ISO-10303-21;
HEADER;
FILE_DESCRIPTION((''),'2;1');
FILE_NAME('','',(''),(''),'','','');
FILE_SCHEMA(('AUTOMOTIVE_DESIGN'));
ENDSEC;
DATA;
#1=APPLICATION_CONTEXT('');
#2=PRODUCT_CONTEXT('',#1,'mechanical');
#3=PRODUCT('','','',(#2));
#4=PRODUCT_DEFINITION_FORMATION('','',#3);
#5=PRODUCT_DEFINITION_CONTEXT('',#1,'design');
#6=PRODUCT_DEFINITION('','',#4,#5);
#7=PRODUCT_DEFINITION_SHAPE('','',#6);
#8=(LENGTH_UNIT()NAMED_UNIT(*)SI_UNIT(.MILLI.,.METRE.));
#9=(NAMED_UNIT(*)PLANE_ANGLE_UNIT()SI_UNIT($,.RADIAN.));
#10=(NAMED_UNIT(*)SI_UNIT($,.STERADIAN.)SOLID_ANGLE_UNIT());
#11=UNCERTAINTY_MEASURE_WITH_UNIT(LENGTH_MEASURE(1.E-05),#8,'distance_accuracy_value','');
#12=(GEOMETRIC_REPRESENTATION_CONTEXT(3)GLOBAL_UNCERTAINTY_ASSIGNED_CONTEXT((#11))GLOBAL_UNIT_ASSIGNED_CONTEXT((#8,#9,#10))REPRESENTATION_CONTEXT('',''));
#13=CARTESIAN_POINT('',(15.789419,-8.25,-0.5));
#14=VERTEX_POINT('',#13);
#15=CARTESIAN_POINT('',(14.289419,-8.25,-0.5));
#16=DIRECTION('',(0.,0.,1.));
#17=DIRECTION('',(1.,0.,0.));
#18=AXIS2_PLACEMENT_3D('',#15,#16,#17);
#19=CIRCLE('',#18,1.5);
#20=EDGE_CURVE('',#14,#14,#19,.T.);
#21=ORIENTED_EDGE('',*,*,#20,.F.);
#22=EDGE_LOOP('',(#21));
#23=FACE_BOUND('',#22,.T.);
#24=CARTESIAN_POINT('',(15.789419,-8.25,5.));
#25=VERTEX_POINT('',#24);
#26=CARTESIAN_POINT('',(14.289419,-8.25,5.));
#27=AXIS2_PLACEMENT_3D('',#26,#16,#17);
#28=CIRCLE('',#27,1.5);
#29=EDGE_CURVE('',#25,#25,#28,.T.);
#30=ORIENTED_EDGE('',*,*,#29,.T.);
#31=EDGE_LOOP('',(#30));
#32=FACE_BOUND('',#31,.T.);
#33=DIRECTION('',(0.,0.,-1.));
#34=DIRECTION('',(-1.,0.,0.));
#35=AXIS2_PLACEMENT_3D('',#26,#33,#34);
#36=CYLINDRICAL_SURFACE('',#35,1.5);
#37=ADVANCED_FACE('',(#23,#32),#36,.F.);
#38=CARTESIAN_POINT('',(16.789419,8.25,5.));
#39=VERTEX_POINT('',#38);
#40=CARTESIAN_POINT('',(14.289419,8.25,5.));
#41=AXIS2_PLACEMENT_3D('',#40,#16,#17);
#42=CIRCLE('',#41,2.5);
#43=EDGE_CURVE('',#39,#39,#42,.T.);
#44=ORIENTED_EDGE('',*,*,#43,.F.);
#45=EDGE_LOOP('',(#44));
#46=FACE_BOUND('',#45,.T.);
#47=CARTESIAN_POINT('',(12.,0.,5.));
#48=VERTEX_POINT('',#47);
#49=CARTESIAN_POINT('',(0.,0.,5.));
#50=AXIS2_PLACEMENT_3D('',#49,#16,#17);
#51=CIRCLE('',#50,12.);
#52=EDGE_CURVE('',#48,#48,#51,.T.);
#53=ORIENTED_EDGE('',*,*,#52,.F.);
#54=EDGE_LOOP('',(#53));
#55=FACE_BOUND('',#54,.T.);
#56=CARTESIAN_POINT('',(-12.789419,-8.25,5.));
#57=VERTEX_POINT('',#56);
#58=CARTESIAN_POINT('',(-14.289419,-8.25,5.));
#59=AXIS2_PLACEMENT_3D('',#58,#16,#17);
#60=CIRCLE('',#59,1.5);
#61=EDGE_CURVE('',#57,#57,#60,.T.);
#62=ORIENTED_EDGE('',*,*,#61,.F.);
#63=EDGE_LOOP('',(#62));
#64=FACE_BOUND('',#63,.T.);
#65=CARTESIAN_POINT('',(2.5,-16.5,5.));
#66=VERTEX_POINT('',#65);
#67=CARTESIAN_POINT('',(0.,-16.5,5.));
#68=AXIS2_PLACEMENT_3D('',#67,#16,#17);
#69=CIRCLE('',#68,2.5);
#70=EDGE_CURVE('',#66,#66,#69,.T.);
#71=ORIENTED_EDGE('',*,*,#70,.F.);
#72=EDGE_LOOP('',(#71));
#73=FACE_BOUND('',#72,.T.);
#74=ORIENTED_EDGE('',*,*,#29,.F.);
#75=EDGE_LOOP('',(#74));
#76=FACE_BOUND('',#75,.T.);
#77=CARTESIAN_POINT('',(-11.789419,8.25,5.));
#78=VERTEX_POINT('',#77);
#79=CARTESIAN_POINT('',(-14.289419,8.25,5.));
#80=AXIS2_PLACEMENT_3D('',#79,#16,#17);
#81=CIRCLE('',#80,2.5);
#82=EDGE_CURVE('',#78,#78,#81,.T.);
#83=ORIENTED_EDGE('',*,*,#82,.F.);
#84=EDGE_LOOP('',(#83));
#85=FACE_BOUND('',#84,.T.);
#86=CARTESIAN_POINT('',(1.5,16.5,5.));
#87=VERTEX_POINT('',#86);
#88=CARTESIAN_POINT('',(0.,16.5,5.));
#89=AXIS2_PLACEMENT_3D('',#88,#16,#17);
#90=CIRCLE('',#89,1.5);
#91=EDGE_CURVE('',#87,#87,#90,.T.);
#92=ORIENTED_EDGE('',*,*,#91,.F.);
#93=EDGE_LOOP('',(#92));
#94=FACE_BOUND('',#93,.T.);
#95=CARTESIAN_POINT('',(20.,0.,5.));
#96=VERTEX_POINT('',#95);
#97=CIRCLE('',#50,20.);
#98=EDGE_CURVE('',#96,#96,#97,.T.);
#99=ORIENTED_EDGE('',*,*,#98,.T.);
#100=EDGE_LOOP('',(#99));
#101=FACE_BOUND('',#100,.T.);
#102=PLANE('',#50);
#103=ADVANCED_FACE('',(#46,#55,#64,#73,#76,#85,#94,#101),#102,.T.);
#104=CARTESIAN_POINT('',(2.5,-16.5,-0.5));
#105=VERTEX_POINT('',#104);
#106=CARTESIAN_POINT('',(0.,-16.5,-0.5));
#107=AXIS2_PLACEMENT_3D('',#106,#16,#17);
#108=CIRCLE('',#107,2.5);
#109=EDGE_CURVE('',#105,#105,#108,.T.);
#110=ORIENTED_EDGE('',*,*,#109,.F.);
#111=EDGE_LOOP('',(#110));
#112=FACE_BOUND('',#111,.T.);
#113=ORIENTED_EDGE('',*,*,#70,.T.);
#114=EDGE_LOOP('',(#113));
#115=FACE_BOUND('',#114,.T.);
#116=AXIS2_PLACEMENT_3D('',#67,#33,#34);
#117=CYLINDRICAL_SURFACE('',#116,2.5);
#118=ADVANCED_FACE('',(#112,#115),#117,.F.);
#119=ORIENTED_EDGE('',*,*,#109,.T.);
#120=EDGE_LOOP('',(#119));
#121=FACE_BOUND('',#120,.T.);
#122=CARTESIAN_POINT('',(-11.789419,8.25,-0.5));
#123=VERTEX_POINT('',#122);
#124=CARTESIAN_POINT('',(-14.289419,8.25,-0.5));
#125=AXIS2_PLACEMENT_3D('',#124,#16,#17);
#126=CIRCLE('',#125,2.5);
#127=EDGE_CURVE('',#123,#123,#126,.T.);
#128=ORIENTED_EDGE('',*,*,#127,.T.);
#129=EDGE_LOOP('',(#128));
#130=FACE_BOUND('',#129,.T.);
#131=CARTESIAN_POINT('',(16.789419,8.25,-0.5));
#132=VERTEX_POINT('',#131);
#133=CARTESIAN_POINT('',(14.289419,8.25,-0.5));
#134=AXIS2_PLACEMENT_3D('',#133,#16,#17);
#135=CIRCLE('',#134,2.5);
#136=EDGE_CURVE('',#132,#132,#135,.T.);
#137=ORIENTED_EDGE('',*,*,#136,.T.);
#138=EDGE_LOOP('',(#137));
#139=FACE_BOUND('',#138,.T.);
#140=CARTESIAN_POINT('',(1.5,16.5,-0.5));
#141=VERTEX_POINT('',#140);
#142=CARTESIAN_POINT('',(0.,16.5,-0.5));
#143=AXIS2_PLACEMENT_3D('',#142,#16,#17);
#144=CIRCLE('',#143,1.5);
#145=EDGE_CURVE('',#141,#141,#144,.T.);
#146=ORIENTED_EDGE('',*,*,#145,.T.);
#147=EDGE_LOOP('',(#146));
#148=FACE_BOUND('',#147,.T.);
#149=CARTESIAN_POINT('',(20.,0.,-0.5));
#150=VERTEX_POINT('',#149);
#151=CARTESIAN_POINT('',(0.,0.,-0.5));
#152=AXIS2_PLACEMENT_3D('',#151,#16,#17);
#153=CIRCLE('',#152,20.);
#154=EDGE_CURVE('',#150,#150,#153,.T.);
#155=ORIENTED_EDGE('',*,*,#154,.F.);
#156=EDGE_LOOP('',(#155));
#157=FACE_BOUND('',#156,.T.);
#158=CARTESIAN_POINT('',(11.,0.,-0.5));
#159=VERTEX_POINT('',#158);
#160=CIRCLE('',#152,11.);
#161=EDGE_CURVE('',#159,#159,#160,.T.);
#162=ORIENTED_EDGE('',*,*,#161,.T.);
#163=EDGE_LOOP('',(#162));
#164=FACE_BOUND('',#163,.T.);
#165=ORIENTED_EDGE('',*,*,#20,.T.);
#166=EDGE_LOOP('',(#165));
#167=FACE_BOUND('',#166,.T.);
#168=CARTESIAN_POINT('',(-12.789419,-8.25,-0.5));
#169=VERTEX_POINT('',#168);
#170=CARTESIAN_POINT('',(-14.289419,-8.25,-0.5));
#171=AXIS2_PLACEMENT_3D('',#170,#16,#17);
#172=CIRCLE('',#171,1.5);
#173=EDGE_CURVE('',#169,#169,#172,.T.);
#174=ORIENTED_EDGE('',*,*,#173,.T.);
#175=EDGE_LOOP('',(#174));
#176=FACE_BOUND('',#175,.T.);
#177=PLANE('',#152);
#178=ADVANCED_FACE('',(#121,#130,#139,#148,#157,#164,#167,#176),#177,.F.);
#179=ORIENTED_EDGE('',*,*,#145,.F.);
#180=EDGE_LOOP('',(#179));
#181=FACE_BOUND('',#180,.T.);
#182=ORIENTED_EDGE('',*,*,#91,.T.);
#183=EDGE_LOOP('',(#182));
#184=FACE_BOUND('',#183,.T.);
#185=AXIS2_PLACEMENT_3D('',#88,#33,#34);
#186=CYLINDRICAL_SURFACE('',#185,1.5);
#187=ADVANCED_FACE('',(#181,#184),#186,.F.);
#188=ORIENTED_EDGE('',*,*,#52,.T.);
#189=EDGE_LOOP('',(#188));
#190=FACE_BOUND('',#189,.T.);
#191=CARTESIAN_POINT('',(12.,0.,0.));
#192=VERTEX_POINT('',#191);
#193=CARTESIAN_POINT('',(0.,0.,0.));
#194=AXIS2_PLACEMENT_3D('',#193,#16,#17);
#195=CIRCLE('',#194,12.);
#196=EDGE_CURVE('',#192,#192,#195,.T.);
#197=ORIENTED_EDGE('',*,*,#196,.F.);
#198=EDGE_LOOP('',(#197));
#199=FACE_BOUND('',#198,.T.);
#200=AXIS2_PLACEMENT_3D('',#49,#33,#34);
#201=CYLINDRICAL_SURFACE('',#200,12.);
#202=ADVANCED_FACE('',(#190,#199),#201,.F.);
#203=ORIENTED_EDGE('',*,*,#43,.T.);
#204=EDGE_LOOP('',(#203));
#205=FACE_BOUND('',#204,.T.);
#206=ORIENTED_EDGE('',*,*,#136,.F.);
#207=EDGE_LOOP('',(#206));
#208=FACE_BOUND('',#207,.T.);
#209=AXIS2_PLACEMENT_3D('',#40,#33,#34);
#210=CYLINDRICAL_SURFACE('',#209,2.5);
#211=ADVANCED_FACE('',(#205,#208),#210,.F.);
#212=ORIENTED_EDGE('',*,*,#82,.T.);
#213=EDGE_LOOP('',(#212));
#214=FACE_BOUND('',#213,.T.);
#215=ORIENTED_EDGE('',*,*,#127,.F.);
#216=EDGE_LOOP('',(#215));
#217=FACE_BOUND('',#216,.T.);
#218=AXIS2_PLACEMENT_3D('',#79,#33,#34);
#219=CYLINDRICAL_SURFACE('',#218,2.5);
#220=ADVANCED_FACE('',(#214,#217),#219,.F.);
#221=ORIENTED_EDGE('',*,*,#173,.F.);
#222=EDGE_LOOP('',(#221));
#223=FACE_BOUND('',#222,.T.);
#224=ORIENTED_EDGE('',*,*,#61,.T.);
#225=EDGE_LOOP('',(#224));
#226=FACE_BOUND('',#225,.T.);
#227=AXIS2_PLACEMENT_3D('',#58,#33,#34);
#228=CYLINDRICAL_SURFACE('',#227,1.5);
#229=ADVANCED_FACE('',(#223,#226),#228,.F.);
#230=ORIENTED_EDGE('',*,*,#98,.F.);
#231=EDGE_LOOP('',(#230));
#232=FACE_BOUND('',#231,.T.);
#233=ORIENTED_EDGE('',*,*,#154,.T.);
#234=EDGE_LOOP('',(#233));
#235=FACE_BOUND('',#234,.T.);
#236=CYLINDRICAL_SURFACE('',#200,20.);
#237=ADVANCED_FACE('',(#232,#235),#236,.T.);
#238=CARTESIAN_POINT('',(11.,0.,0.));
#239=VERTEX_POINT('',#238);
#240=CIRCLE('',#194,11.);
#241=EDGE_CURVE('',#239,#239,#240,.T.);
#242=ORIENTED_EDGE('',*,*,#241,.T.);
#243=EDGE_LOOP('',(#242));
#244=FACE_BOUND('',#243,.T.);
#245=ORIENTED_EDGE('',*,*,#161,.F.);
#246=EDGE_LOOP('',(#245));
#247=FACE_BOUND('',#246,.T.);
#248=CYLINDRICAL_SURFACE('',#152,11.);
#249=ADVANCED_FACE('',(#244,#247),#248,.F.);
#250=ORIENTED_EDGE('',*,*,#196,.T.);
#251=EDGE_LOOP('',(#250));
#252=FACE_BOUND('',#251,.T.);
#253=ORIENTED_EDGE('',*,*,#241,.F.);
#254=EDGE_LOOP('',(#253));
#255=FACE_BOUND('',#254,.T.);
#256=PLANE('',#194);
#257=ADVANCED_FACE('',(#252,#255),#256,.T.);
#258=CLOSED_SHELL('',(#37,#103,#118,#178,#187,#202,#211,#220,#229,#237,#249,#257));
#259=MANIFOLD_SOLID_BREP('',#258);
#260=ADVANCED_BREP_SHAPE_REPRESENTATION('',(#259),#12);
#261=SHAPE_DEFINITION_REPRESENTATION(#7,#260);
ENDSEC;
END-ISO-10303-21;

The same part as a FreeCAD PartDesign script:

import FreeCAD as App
import Part
import Sketcher
from FreeCAD import Vector

doc = App.newDocument("Part")
body = doc.addObject("PartDesign::Body", "Body")

# Sketch on XY plane
sketch1 = doc.addObject("Sketcher::SketchObject", "Sketch")
body.addObject(sketch1)
sketch1.AttachmentSupport = (doc.XY_Plane, [""])
sketch1.MapMode = "FlatFace"
sketch1.addGeometry([
    Part.Circle(Vector(0, 0, 0), Vector(0, 0, 1), 20),  # 0
    Part.Circle(Vector(0, -16.5, 0), Vector(0, 0, 1), 2.5),  # 1
    Part.Circle(Vector(-14.3, -8.2, 0), Vector(0, 0, 1), 1.5),  # 2
    Part.Circle(Vector(14.3, -8.2, 0), Vector(0, 0, 1), 1.5),  # 3
    Part.Circle(Vector(-14.3, 8.2, 0), Vector(0, 0, 1), 2.5),  # 4
    Part.Circle(Vector(0, 16.5, 0), Vector(0, 0, 1), 1.5),  # 5
    Part.Circle(Vector(0, 0, 0), Vector(0, 0, 1), 12),  # 6
    Part.Circle(Vector(14.3, 8.2, 0), Vector(0, 0, 1), 2.5),  # 7
], False)
sketch1.addConstraint([
    Sketcher.Constraint("Coincident", 0, 3, -1, 1),
    Sketcher.Constraint("Coincident", 6, 3, -1, 1),
    Sketcher.Constraint("Equal", 2, 3),
    Sketcher.Constraint("Equal", 1, 4),
    Sketcher.Constraint("Equal", 3, 5),
    Sketcher.Constraint("Equal", 4, 7),
    Sketcher.Constraint("Symmetric", 3, 3, 4, 3, -1, 1),
    Sketcher.Constraint("Symmetric", 1, 3, 5, 3, -1, 1),
    Sketcher.Constraint("Symmetric", 2, 3, 7, 3, -1, 1),
    Sketcher.Constraint("Symmetric", 2, 3, 3, 3, -2),
    Sketcher.Constraint("PointOnObject", 1, 3, -2),
    Sketcher.Constraint("Diameter", 0, 40.0),
    Sketcher.Constraint("Diameter", 1, 5.0),
    Sketcher.Constraint("Diameter", 2, 3.0),
    Sketcher.Constraint("Diameter", 6, 24.0),
    Sketcher.Constraint("DistanceY", 1, 3, 5, 3, 33.0),
    Sketcher.Constraint("DistanceY", 2, 3, 4, 3, 16.5),
    Sketcher.Constraint("DistanceX", 2, 3, -1, 1, 14.289419),
])
pad1 = doc.addObject("PartDesign::Pad", "Pad")
body.addObject(pad1)
pad1.Profile = sketch1
pad1.Length = 5

# Sketch on XY plane
sketch2 = doc.addObject("Sketcher::SketchObject", "Sketch001")
body.addObject(sketch2)
sketch2.AttachmentSupport = (doc.XY_Plane, [""])
sketch2.MapMode = "FlatFace"
sketch2.AttachmentOffset = App.Placement(Vector(0, 0, -0.5), App.Rotation())
sketch2.addGeometry([
    Part.Circle(Vector(0, 0, 0), Vector(0, 0, 1), 20),  # 0
    Part.Circle(Vector(0, -16.5, 0), Vector(0, 0, 1), 2.5),  # 1
    Part.Circle(Vector(-14.3, -8.2, 0), Vector(0, 0, 1), 1.5),  # 2
    Part.Circle(Vector(14.3, -8.2, 0), Vector(0, 0, 1), 1.5),  # 3
    Part.Circle(Vector(-14.3, 8.2, 0), Vector(0, 0, 1), 2.5),  # 4
    Part.Circle(Vector(0, 16.5, 0), Vector(0, 0, 1), 1.5),  # 5
    Part.Circle(Vector(14.3, 8.2, 0), Vector(0, 0, 1), 2.5),  # 6
    Part.Circle(Vector(0, 0, 0), Vector(0, 0, 1), 11),  # 7
], False)
sketch2.addConstraint([
    Sketcher.Constraint("Coincident", 0, 3, -1, 1),
    Sketcher.Constraint("Coincident", 7, 3, -1, 1),
    Sketcher.Constraint("Equal", 2, 3),
    Sketcher.Constraint("Equal", 1, 4),
    Sketcher.Constraint("Equal", 3, 5),
    Sketcher.Constraint("Equal", 4, 6),
    Sketcher.Constraint("Symmetric", 3, 3, 4, 3, -1, 1),
    Sketcher.Constraint("Symmetric", 1, 3, 5, 3, -1, 1),
    Sketcher.Constraint("Symmetric", 2, 3, 6, 3, -1, 1),
    Sketcher.Constraint("Symmetric", 2, 3, 3, 3, -2),
    Sketcher.Constraint("PointOnObject", 1, 3, -2),
    Sketcher.Constraint("Diameter", 0, 40.0),
    Sketcher.Constraint("Diameter", 1, 5.0),
    Sketcher.Constraint("Diameter", 2, 3.0),
    Sketcher.Constraint("Diameter", 7, 22.0),
    Sketcher.Constraint("DistanceY", 1, 3, 5, 3, 33.0),
    Sketcher.Constraint("DistanceY", 2, 3, 4, 3, 16.5),
    Sketcher.Constraint("DistanceX", 2, 3, -1, 1, 14.289419),
])
pad2 = doc.addObject("PartDesign::Pad", "Pad001")
body.addObject(pad2)
pad2.Profile = sketch2
pad2.Length = 0.5

doc.recompute()
